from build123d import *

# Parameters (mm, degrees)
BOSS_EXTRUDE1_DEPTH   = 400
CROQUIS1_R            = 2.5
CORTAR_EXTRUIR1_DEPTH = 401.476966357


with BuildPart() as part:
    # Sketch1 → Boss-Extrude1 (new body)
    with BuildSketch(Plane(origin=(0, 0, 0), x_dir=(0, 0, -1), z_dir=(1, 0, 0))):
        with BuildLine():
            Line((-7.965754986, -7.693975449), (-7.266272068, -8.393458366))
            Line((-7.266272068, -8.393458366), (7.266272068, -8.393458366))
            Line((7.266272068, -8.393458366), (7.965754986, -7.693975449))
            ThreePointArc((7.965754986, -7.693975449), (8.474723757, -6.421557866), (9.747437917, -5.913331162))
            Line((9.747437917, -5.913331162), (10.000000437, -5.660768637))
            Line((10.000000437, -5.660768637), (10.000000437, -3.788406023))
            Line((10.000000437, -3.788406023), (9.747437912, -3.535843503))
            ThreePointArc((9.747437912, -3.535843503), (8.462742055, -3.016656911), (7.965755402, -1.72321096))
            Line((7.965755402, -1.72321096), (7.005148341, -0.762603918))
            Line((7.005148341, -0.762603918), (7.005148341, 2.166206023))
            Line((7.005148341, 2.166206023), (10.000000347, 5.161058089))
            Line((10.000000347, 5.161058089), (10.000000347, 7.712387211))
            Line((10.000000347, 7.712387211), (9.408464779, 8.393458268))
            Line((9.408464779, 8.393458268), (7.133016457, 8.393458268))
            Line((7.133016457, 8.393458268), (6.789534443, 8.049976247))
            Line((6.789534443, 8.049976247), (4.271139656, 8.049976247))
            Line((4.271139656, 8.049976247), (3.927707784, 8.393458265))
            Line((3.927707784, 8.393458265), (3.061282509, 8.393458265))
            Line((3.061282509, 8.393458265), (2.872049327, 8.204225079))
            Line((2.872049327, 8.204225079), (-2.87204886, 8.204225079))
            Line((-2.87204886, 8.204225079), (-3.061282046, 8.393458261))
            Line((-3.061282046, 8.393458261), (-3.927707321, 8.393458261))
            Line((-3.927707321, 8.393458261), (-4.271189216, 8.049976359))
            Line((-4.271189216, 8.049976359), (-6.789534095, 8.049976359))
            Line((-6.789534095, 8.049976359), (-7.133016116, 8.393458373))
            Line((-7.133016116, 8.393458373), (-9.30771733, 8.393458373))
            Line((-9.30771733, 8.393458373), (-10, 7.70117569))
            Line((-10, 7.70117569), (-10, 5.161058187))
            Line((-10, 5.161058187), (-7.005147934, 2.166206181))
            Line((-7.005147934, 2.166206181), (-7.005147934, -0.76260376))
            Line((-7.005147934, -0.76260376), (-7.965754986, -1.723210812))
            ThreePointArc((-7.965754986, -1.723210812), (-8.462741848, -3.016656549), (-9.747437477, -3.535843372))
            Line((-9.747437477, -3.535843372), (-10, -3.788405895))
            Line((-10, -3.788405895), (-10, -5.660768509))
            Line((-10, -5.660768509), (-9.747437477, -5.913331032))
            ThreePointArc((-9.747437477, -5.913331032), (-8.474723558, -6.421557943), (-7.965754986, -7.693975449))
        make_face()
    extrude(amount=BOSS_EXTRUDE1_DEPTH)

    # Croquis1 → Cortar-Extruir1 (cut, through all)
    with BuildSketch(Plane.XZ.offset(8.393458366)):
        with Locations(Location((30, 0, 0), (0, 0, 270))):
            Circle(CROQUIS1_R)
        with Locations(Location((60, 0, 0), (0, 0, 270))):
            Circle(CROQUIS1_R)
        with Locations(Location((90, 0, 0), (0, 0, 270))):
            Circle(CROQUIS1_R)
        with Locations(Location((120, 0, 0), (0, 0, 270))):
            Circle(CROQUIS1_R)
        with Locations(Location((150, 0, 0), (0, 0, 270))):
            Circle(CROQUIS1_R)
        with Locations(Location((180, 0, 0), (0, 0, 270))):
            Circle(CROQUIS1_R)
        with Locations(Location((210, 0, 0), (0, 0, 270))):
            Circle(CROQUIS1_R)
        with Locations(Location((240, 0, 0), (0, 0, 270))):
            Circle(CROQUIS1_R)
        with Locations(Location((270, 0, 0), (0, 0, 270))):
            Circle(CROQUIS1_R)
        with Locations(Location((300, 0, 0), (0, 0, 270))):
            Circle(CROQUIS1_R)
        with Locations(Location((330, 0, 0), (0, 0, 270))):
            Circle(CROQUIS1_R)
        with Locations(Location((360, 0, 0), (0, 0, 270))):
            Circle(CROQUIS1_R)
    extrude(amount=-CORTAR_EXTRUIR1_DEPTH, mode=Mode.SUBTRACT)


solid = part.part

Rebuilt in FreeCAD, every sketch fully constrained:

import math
import FreeCAD as App
import Part
import Sketcher

V = App.Vector

doc = App.newDocument("Part")
params = doc.addObject("Spreadsheet::Sheet", "Params")
for row, (alias, value) in enumerate([
    ("pad1_length", "400 mm"),
    ("sketch2_diameter", "5 mm"),
], start=1):
    params.set(f"A{row}", alias)
    params.set(f"B{row}", "=" + value)
    params.setAlias(f"B{row}", alias)

body = doc.addObject("PartDesign::Body", "Body")

# Sketch on YZ plane
sketch1 = doc.addObject("Sketcher::SketchObject", "Sketch")
body.addObject(sketch1)
sketch1.AttachmentSupport = (doc.YZ_Plane, [""])
sketch1.MapMode = "FlatFace"
sketch1.addGeometry(Part.LineSegment(V(-7.69, 7.97, 0), V(-8.39, 7.27, 0)), False)
sketch1.addGeometry(Part.LineSegment(V(-8.39, 7.27, 0), V(-8.39, -7.27, 0)), False)
sketch1.addGeometry(Part.LineSegment(V(-8.39, -7.27, 0), V(-7.69, -7.97, 0)), False)
sketch1.addGeometry(Part.ArcOfCircle(Part.Circle(V(-7.65, -9.7, 0), V(0, 0, 1), 1.74), math.radians(-1), math.radians(91)), False)
sketch1.addGeometry(Part.LineSegment(V(-5.91, -9.75, 0), V(-5.66, -10, 0)), False)
sketch1.addGeometry(Part.LineSegment(V(-5.66, -10, 0), V(-3.79, -10, 0)), False)
sketch1.addGeometry(Part.LineSegment(V(-3.79, -10, 0), V(-3.54, -9.75, 0)), False)
sketch1.addGeometry(Part.ArcOfCircle(Part.Circle(V(-1.8, -9.7, 0), V(0, 0, 1), 1.74), math.radians(88), math.radians(181)), False)
sketch1.addGeometry(Part.LineSegment(V(-1.72, -7.97, 0), V(-0.76, -7.01, 0)), False)
sketch1.addGeometry(Part.LineSegment(V(-0.76, -7.01, 0), V(2.17, -7.01, 0)), False)
sketch1.addGeometry(Part.LineSegment(V(2.17, -7.01, 0), V(5.16, -10, 0)), False)
sketch1.addGeometry(Part.LineSegment(V(5.16, -10, 0), V(7.71, -10, 0)), False)
sketch1.addGeometry(Part.LineSegment(V(7.71, -10, 0), V(8.39, -9.41, 0)), False)
sketch1.addGeometry(Part.LineSegment(V(8.39, -9.41, 0), V(8.39, -7.13, 0)), False)
sketch1.addGeometry(Part.LineSegment(V(8.39, -7.13, 0), V(8.05, -6.79, 0)), False)
sketch1.addGeometry(Part.LineSegment(V(8.05, -6.79, 0), V(8.05, -4.27, 0)), False)
sketch1.addGeometry(Part.LineSegment(V(8.05, -4.27, 0), V(8.39, -3.93, 0)), False)
sketch1.addGeometry(Part.LineSegment(V(8.39, -3.93, 0), V(8.39, -3.06, 0)), False)
sketch1.addGeometry(Part.LineSegment(V(8.39, -3.06, 0), V(8.2, -2.87, 0)), False)
sketch1.addGeometry(Part.LineSegment(V(8.2, -2.87, 0), V(8.2, 2.87, 0)), False)
sketch1.addGeometry(Part.LineSegment(V(8.2, 2.87, 0), V(8.39, 3.06, 0)), False)
sketch1.addGeometry(Part.LineSegment(V(8.39, 3.06, 0), V(8.39, 3.93, 0)), False)
sketch1.addGeometry(Part.LineSegment(V(8.39, 3.93, 0), V(8.05, 4.27, 0)), False)
sketch1.addGeometry(Part.LineSegment(V(8.05, 4.27, 0), V(8.05, 6.79, 0)), False)
sketch1.addGeometry(Part.LineSegment(V(8.05, 6.79, 0), V(8.39, 7.13, 0)), False)
sketch1.addGeometry(Part.LineSegment(V(8.39, 7.13, 0), V(8.39, 9.31, 0)), False)
sketch1.addGeometry(Part.LineSegment(V(8.39, 9.31, 0), V(7.7, 10, 0)), False)
sketch1.addGeometry(Part.LineSegment(V(7.7, 10, 0), V(5.16, 10, 0)), False)
sketch1.addGeometry(Part.LineSegment(V(5.16, 10, 0), V(2.17, 7.01, 0)), False)
sketch1.addGeometry(Part.LineSegment(V(2.17, 7.01, 0), V(-0.76, 7.01, 0)), False)
sketch1.addGeometry(Part.LineSegment(V(-0.76, 7.01, 0), V(-1.72, 7.97, 0)), False)
sketch1.addGeometry(Part.ArcOfCircle(Part.Circle(V(-1.8, 9.7, 0), V(0, 0, 1), 1.74), math.radians(179), math.radians(272)), False)
sketch1.addGeometry(Part.LineSegment(V(-3.54, 9.75, 0), V(-3.79, 10, 0)), False)
sketch1.addGeometry(Part.LineSegment(V(-3.79, 10, 0), V(-5.66, 10, 0)), False)
sketch1.addGeometry(Part.LineSegment(V(-5.66, 10, 0), V(-5.91, 9.75, 0)), False)
sketch1.addGeometry(Part.ArcOfCircle(Part.Circle(V(-7.65, 9.7, 0), V(0, 0, 1), 1.74), math.radians(-91), math.radians(1)), False)
sketch1.addConstraint(Sketcher.Constraint("Coincident", 0, 2, 1, 1))
sketch1.addConstraint(Sketcher.Constraint("Coincident", 1, 2, 2, 1))
sketch1.addConstraint(Sketcher.Constraint("Coincident", 2, 2, 3, 2))
sketch1.addConstraint(Sketcher.Constraint("Coincident", 3, 1, 4, 1))
sketch1.addConstraint(Sketcher.Constraint("Coincident", 4, 2, 5, 1))
sketch1.addConstraint(Sketcher.Constraint("Coincident", 5, 2, 6, 1))
sketch1.addConstraint(Sketcher.Constraint("Coincident", 6, 2, 7, 2))
sketch1.addConstraint(Sketcher.Constraint("Coincident", 7, 1, 8, 1))
sketch1.addConstraint(Sketcher.Constraint("Coincident", 8, 2, 9, 1))
sketch1.addConstraint(Sketcher.Constraint("Coincident", 9, 2, 10, 1))
sketch1.addConstraint(Sketcher.Constraint("Coincident", 10, 2, 11, 1))
sketch1.addConstraint(Sketcher.Constraint("Coincident", 11, 2, 12, 1))
sketch1.addConstraint(Sketcher.Constraint("Coincident", 12, 2, 13, 1))
sketch1.addConstraint(Sketcher.Constraint("Coincident", 13, 2, 14, 1))
sketch1.addConstraint(Sketcher.Constraint("Coincident", 14, 2, 15, 1))
sketch1.addConstraint(Sketcher.Constraint("Coincident", 15, 2, 16, 1))
sketch1.addConstraint(Sketcher.Constraint("Coincident", 16, 2, 17, 1))
sketch1.addConstraint(Sketcher.Constraint("Coincident", 17, 2, 18, 1))
sketch1.addConstraint(Sketcher.Constraint("Coincident", 18, 2, 19, 1))
sketch1.addConstraint(Sketcher.Constraint("Coincident", 19, 2, 20, 1))
sketch1.addConstraint(Sketcher.Constraint("Coincident", 20, 2, 21, 1))
sketch1.addConstraint(Sketcher.Constraint("Coincident", 21, 2, 22, 1))
sketch1.addConstraint(Sketcher.Constraint("Coincident", 22, 2, 23, 1))
sketch1.addConstraint(Sketcher.Constraint("Coincident", 23, 2, 24, 1))
sketch1.addConstraint(Sketcher.Constraint("Coincident", 24, 2, 25, 1))
sketch1.addConstraint(Sketcher.Constraint("Coincident", 25, 2, 26, 1))
sketch1.addConstraint(Sketcher.Constraint("Coincident", 26, 2, 27, 1))
sketch1.addConstraint(Sketcher.Constraint("Coincident", 27, 2, 28, 1))
sketch1.addConstraint(Sketcher.Constraint("Coincident", 28, 2, 29, 1))
sketch1.addConstraint(Sketcher.Constraint("Coincident", 29, 2, 30, 1))
sketch1.addConstraint(Sketcher.Constraint("Coincident", 30, 2, 31, 2))
sketch1.addConstraint(Sketcher.Constraint("Coincident", 31, 1, 32, 1))
sketch1.addConstraint(Sketcher.Constraint("Coincident", 32, 2, 33, 1))
sketch1.addConstraint(Sketcher.Constraint("Coincident", 33, 2, 34, 1))
sketch1.addConstraint(Sketcher.Constraint("Coincident", 34, 2, 35, 2))
sketch1.addConstraint(Sketcher.Constraint("Coincident", 35, 1, 0, 1))
sketch1.addConstraint(Sketcher.Constraint("Vertical", 1))
sketch1.addConstraint(Sketcher.Constraint("Horizontal", 5))
sketch1.addConstraint(Sketcher.Constraint("Horizontal", 9))
sketch1.addConstraint(Sketcher.Constraint("Horizontal", 11))
sketch1.addConstraint(Sketcher.Constraint("Vertical", 13))
sketch1.addConstraint(Sketcher.Constraint("Vertical", 15))
sketch1.addConstraint(Sketcher.Constraint("Vertical", 17))
sketch1.addConstraint(Sketcher.Constraint("Vertical", 19))
sketch1.addConstraint(Sketcher.Constraint("Vertical", 21))
sketch1.addConstraint(Sketcher.Constraint("Vertical", 23))
sketch1.addConstraint(Sketcher.Constraint("Vertical", 25))
sketch1.addConstraint(Sketcher.Constraint("Horizontal", 27))
sketch1.addConstraint(Sketcher.Constraint("Horizontal", 29))
sketch1.addConstraint(Sketcher.Constraint("Horizontal", 33))
sketch1.addConstraint(Sketcher.Constraint("Equal", 3, 7))
sketch1.addConstraint(Sketcher.Constraint("Equal", 7, 31))
sketch1.addConstraint(Sketcher.Constraint("Equal", 31, 35))
sketch1.addConstraint(Sketcher.Constraint("Symmetric", 7, 3, 31, 3, -1))
sketch1.addConstraint(Sketcher.Constraint("Symmetric", 3, 3, 35, 3, -1))
sketch1.addConstraint(Sketcher.Constraint("Symmetric", 17, 2, 20, 2, -1))
sketch1.addConstraint(Sketcher.Constraint("Symmetric", 14, 2, 23, 2, -1))
sketch1.addConstraint(Sketcher.Constraint("Symmetric", 13, 2, 24, 2, -1))
sketch1.addConstraint(Sketcher.Constraint("Symmetric", 10, 2, 27, 2, -1))
sketch1.addConstraint(Sketcher.Constraint("Symmetric", 9, 2, 28, 2, -1))
sketch1.addConstraint(Sketcher.Constraint("Symmetric", 5, 2, 32, 2, -1))
sketch1.addConstraint(Sketcher.Constraint("Perpendicular", 0, 2))
sketch1.addConstraint(Sketcher.Constraint("Parallel", 2, 4))
sketch1.addConstraint(Sketcher.Constraint("Perpendicular", 4, 6))
sketch1.addConstraint(Sketcher.Constraint("Parallel", 6, 8))
sketch1.addConstraint(Sketcher.Constraint("Perpendicular", 8, 10))
sketch1.addConstraint(Sketcher.Constraint("Parallel", 10, 14))
sketch1.addConstraint(Sketcher.Constraint("Parallel", 14, 18))
sketch1.addConstraint(Sketcher.Constraint("Perpendicular", 18, 20))
sketch1.addConstraint(Sketcher.Constraint("Perpendicular", 20, 22))
sketch1.addConstraint(Sketcher.Constraint("Perpendicular", 22, 24))
sketch1.addConstraint(Sketcher.Constraint("Perpendicular", 24, 26))
sketch1.addConstraint(Sketcher.Constraint("Perpendicular", 28, 30))
sketch1.addConstraint(Sketcher.Constraint("Parallel", 30, 32))
sketch1.addConstraint(Sketcher.Constraint("Perpendicular", 32, 34))
sketch1.addConstraint(Sketcher.Constraint("Horizontal", 3, 1, 6, 2))
sketch1.addConstraint(Sketcher.Constraint("Horizontal", 2, 2, 7, 1))
sketch1.addConstraint(Sketcher.Constraint("Horizontal", 5, 2, 10, 2))
sketch1.addConstraint(Sketcher.Constraint("Horizontal", 31, 1, 34, 2))
sketch1.addConstraint(Sketcher.Constraint("Horizontal", 30, 2, 35, 1))
sketch1.addConstraint(Sketcher.Constraint("Vertical", 13, 2, 16, 2))
sketch1.addConstraint(Sketcher.Constraint("Vertical", 8, 2, 29, 2))
sketch1.addConstraint(Sketcher.Constraint("Equal", 17, 21))
sketch1.addConstraint(Sketcher.Constraint("DistanceY", 4, 2, -1, 1, 10.0))
sketch1.addConstraint(Sketcher.Constraint("Radius", 3, 1.738311))
sketch1.addConstraint(Sketcher.Constraint("DistanceY", 19, 1, 19, 2, 5.744098))
sketch1.addConstraint(Sketcher.Constraint("DistanceY", 25, 1, 25, 2, 2.174701))
sketch1.addConstraint(Sketcher.Constraint("DistanceX", 9, 1, 9, 2, 2.92881))
sketch1.addConstraint(Sketcher.Constraint("DistanceX", 11, 1, 11, 2, 2.551329))
sketch1.addConstraint(Sketcher.Constraint("DistanceY", 13, 1, 13, 2, 2.275448))
sketch1.addConstraint(Sketcher.Constraint("DistanceY", 3, 1, 3, 3, 0.043901))
sketch1.addConstraint(Sketcher.Constraint("DistanceX", 6, 2, 10, 2, 8.696902))
sketch1.addConstraint(Sketcher.Constraint("DistanceX", 7, 1, 11, 2, 9.435598))
sketch1.addConstraint(Sketcher.Constraint("DistanceX", 10, 2, 12, 2, 3.2324))
sketch1.addConstraint(Sketcher.Constraint("DistanceX", 26, 2, 23, 2, 0.348801))
sketch1.addConstraint(Sketcher.Constraint("Distance", 0, 0.989218))
sketch1.addConstraint(Sketcher.Constraint("Distance", 10, 4.23536))
sketch1.addConstraint(Sketcher.Constraint("Distance", 16, 0.485721))
sketch1.addConstraint(Sketcher.Constraint("DistanceX", 5, 1, 5, 2, 1.872363))
sketch1.addConstraint(Sketcher.Constraint("DistanceX", 27, 2, 27, 1, 2.540118))
sketch1.addConstraint(Sketcher.Constraint("DistanceY", 15, 1, 15, 2, 2.518395))
sketch1.addConstraint(Sketcher.Constraint("DistanceY", 17, 1, 17, 2, 0.866425))
sketch1.addConstraint(Sketcher.Constraint("DistanceX", 0, 2, -1, 1, 8.393458))
sketch1.addConstraint(Sketcher.Constraint("DistanceX", 3, 1, -1, 1, 5.913331))
pad1 = doc.addObject("PartDesign::Pad", "Pad")
body.addObject(pad1)
pad1.Profile = sketch1
pad1.setExpression("Length", "Params.pad1_length")

# Sketch on XZ plane
sketch2 = doc.addObject("Sketcher::SketchObject", "Sketch001")
body.addObject(sketch2)
sketch2.AttachmentSupport = (doc.XZ_Plane, [""])
sketch2.MapMode = "FlatFace"
sketch2.AttachmentOffset = App.Placement(V(0, 0, 8.393458), App.Rotation())
sketch2.addGeometry(Part.Circle(V(30, 0, 0), V(0, 0, 1), 2.5), False)
sketch2.addGeometry(Part.Circle(V(60, 0, 0), V(0, 0, 1), 2.5), False)
sketch2.addGeometry(Part.Circle(V(90, 0, 0), V(0, 0, 1), 2.5), False)
sketch2.addGeometry(Part.Circle(V(120, 0, 0), V(0, 0, 1), 2.5), False)
sketch2.addGeometry(Part.Circle(V(150, 0, 0), V(0, 0, 1), 2.5), False)
sketch2.addGeometry(Part.Circle(V(180, 0, 0), V(0, 0, 1), 2.5), False)
sketch2.addGeometry(Part.Circle(V(210, 0, 0), V(0, 0, 1), 2.5), False)
sketch2.addGeometry(Part.Circle(V(240, 0, 0), V(0, 0, 1), 2.5), False)
sketch2.addGeometry(Part.Circle(V(270, 0, 0), V(0, 0, 1), 2.5), False)
sketch2.addGeometry(Part.Circle(V(300, 0, 0), V(0, 0, 1), 2.5), False)
sketch2.addGeometry(Part.Circle(V(330, 0, 0), V(0, 0, 1), 2.5), False)
sketch2.addGeometry(Part.Circle(V(360, 0, 0), V(0, 0, 1), 2.5), False)
sketch2.addConstraint(Sketcher.Constraint("Equal", 0, 1))
sketch2.addConstraint(Sketcher.Constraint("Equal", 1, 2))
sketch2.addConstraint(Sketcher.Constraint("Equal", 2, 3))
sketch2.addConstraint(Sketcher.Constraint("Equal", 3, 4))
sketch2.addConstraint(Sketcher.Constraint("Equal", 4, 5))
sketch2.addConstraint(Sketcher.Constraint("Equal", 5, 6))
sketch2.addConstraint(Sketcher.Constraint("Equal", 6, 7))
sketch2.addConstraint(Sketcher.Constraint("Equal", 7, 8))
sketch2.addConstraint(Sketcher.Constraint("Equal", 8, 9))
sketch2.addConstraint(Sketcher.Constraint("Equal", 9, 10))
sketch2.addConstraint(Sketcher.Constraint("Equal", 10, 11))
sketch2.addConstraint(Sketcher.Constraint("PointOnObject", 0, 3, -1))
sketch2.addConstraint(Sketcher.Constraint("PointOnObject", 1, 3, -1))
sketch2.addConstraint(Sketcher.Constraint("PointOnObject", 2, 3, -1))
sketch2.addConstraint(Sketcher.Constraint("PointOnObject", 3, 3, -1))
sketch2.addConstraint(Sketcher.Constraint("PointOnObject", 4, 3, -1))
sketch2.addConstraint(Sketcher.Constraint("PointOnObject", 5, 3, -1))
sketch2.addConstraint(Sketcher.Constraint("PointOnObject", 6, 3, -1))
sketch2.addConstraint(Sketcher.Constraint("PointOnObject", 7, 3, -1))
sketch2.addConstraint(Sketcher.Constraint("PointOnObject", 8, 3, -1))
sketch2.addConstraint(Sketcher.Constraint("PointOnObject", 9, 3, -1))
sketch2.addConstraint(Sketcher.Constraint("PointOnObject", 10, 3, -1))
sketch2.addConstraint(Sketcher.Constraint("PointOnObject", 11, 3, -1))
sketch2.addConstraint(Sketcher.Constraint("Diameter", 0, 5.0))
sketch2.addConstraint(Sketcher.Constraint("DistanceX", -1, 1, 0, 3, 30.0))
sketch2.addConstraint(Sketcher.Constraint("DistanceX", -1, 1, 1, 3, 60.0))
sketch2.addConstraint(Sketcher.Constraint("DistanceX", -1, 1, 2, 3, 90.0))
sketch2.addConstraint(Sketcher.Constraint("DistanceX", -1, 1, 3, 3, 120.0))
sketch2.addConstraint(Sketcher.Constraint("DistanceX", -1, 1, 4, 3, 150.0))
sketch2.addConstraint(Sketcher.Constraint("DistanceX", -1, 1, 5, 3, 180.0))
sketch2.addConstraint(Sketcher.Constraint("DistanceX", -1, 1, 6, 3, 210.0))
sketch2.addConstraint(Sketcher.Constraint("DistanceX", -1, 1, 7, 3, 240.0))
sketch2.addConstraint(Sketcher.Constraint("DistanceX", -1, 1, 8, 3, 270.0))
sketch2.addConstraint(Sketcher.Constraint("DistanceX", -1, 1, 9, 3, 300.0))
sketch2.addConstraint(Sketcher.Constraint("DistanceX", -1, 1, 10, 3, 330.0))
sketch2.addConstraint(Sketcher.Constraint("DistanceX", -1, 1, 11, 3, 360.0))
sketch2.setExpression("Constraints[23]", "Params.sketch2_diameter")
pocket1 = doc.addObject("PartDesign::Pocket", "Pocket")
body.addObject(pocket1)
pocket1.Profile = sketch2
pocket1.Type = "ThroughAll"

doc.recompute()
